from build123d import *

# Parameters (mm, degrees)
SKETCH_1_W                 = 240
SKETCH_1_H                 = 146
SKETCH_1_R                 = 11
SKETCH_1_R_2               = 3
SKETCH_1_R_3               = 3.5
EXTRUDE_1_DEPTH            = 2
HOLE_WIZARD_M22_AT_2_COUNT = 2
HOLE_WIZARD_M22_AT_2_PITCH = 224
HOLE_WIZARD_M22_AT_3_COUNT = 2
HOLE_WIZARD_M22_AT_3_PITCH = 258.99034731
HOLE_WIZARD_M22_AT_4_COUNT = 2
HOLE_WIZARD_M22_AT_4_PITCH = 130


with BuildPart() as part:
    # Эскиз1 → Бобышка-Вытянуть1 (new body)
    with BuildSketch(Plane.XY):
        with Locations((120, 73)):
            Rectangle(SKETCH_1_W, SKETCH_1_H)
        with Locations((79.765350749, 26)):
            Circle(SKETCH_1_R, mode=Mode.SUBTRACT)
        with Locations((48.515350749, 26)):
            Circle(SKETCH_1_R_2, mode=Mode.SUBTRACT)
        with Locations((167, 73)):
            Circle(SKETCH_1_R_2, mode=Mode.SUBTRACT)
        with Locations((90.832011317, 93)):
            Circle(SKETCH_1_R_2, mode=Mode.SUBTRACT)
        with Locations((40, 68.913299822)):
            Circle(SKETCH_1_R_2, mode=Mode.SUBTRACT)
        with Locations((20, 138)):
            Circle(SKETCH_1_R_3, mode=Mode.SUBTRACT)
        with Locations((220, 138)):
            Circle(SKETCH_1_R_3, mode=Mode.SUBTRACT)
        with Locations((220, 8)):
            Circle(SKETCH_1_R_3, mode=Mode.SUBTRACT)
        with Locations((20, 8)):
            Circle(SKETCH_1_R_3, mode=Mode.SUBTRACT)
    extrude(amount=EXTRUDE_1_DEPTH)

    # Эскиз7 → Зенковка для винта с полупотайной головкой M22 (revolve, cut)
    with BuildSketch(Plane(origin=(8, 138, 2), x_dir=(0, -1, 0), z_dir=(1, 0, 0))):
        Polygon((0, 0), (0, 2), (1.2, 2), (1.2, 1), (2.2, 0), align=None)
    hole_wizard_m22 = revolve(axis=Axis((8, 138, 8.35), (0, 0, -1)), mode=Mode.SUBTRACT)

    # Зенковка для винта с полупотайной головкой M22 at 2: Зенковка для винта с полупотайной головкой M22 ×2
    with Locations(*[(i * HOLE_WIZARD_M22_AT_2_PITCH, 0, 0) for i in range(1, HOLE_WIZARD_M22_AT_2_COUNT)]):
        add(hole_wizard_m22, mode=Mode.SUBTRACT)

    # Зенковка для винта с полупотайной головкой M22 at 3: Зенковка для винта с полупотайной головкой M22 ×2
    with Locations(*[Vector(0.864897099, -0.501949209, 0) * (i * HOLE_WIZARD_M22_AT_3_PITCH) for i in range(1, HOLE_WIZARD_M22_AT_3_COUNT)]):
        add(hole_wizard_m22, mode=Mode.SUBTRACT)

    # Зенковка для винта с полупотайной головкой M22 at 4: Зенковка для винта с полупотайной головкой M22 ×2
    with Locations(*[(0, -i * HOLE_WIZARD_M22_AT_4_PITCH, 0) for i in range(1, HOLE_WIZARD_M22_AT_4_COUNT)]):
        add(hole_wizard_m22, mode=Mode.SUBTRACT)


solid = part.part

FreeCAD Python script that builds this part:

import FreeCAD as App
import Part
import Sketcher
from FreeCAD import Vector
Q = App.Units.Quantity

doc = App.newDocument("Part")
body = doc.addObject("PartDesign::Body", "Body")

sketch1 = body.newObject("Sketcher::SketchObject", "Sketch")
sketch1.AttachmentSupport = (doc.getObject("XY_Plane"), [""])
sketch1.MapMode = "FlatFace"
sketch1.addGeometry([
    Part.LineSegment(Vector(0, 146, 0), Vector(0, 0, 0)),
    Part.LineSegment(Vector(0, 0, 0), Vector(240, 0, 0)),
    Part.LineSegment(Vector(240, 0, 0), Vector(240, 146, 0)),
    Part.LineSegment(Vector(240, 146, 0), Vector(0, 146, 0)),
    Part.Circle(Vector(20, 8, 0), Vector(0, 0, 1), 3.5),
    Part.Circle(Vector(48.5, 26, 0), Vector(0, 0, 1), 3),
    Part.Circle(Vector(79.8, 26, 0), Vector(0, 0, 1), 11),
    Part.Circle(Vector(40, 68.9, 0), Vector(0, 0, 1), 3),
    Part.Circle(Vector(220, 8, 0), Vector(0, 0, 1), 3.5),
    Part.Circle(Vector(90.8, 93, 0), Vector(0, 0, 1), 3),
    Part.Circle(Vector(20, 138, 0), Vector(0, 0, 1), 3.5),
    Part.Circle(Vector(167, 73, 0), Vector(0, 0, 1), 3),
    Part.Circle(Vector(220, 138, 0), Vector(0, 0, 1), 3.5),
], False)
sketch1.addConstraint([
    Sketcher.Constraint("Coincident", 0, 2, 1, 1),
    Sketcher.Constraint("Coincident", 1, 2, 2, 1),
    Sketcher.Constraint("Coincident", 2, 2, 3, 1),
    Sketcher.Constraint("Coincident", 3, 2, 0, 1),
    Sketcher.Constraint("Vertical", 0),
    Sketcher.Constraint("Horizontal", 1),
    Sketcher.Constraint("Vertical", 2),
    Sketcher.Constraint("Horizontal", 3),
    Sketcher.Constraint("Coincident", 0, 2, -1, 1),
    Sketcher.Constraint("Equal", 5, 7),
    Sketcher.Constraint("Equal", 4, 8),
    Sketcher.Constraint("Equal", 7, 9),
    Sketcher.Constraint("Equal", 8, 10),
    Sketcher.Constraint("Equal", 9, 11),
    Sketcher.Constraint("Equal", 10, 12),
    Sketcher.Constraint("Horizontal", 5, 3, 6, 3),
    Sketcher.Constraint("Horizontal", 4, 3, 8, 3),
    Sketcher.Constraint("Horizontal", 10, 3, 12, 3),
    Sketcher.Constraint("Vertical", 4, 3, 10, 3),
    Sketcher.Constraint("Vertical", 8, 3, 12, 3),
    Sketcher.Constraint("Diameter", 4, 7.0),
    Sketcher.Constraint("Diameter", 5, 6.0),
    Sketcher.Constraint("Diameter", 6, 22.0),
    Sketcher.Constraint("DistanceX", 1, 1, 1, 2, 240.0),
    Sketcher.Constraint("DistanceY", 0, 2, 0, 1, 146.0),
    Sketcher.Constraint("DistanceX", -1, 1, 4, 3, 20.0),
    Sketcher.Constraint("DistanceY", -1, 1, 4, 3, 8.0),
    Sketcher.Constraint("DistanceY", -1, 1, 5, 3, 26.0),
    Sketcher.Constraint("DistanceX", -1, 1, 7, 3, 40.0),
    Sketcher.Constraint("DistanceX", -1, 1, 8, 3, 220.0),
    Sketcher.Constraint("DistanceY", -1, 1, 9, 3, 93.0),
    Sketcher.Constraint("DistanceY", -1, 1, 10, 3, 138.0),
    Sketcher.Constraint("DistanceX", -1, 1, 11, 3, 167.0),
    Sketcher.Constraint("DistanceY", -1, 1, 11, 3, 73.0),
    Sketcher.Constraint("DistanceX", 5, 3, 6, 3, 31.25),
    Sketcher.Constraint("DistanceY", -1, 1, 7, 3, 68.9133),
    Sketcher.Constraint("DistanceX", -1, 1, 5, 3, 48.515351),
    Sketcher.Constraint("DistanceX", -1, 1, 9, 3, 90.832011),
])
pad1 = body.newObject("PartDesign::Pad", "Pad")
pad1.Profile = sketch1
pad1.Length = 2

sketch2 = body.newObject("Sketcher::SketchObject", "Sketch001")
sketch2.AttachmentSupport = (doc.getObject("YZ_Plane"), [""])
sketch2.MapMode = "FlatFace"
sketch2.AttachmentOffset = App.Placement(Vector(0, 0, 8), App.Rotation())
sketch2.addGeometry([
    Part.LineSegment(Vector(138, 0, 0), Vector(138, 2, 0)),
    Part.LineSegment(Vector(138, 2, 0), Vector(135.8, 2, 0)),
    Part.LineSegment(Vector(135.8, 2, 0), Vector(136.8, 1, 0)),
    Part.LineSegment(Vector(136.8, 1, 0), Vector(136.8, 0, 0)),
    Part.LineSegment(Vector(136.8, 0, 0), Vector(138, 0, 0)),
], False)
sketch2.addGeometry(Part.LineSegment(Vector(138, 2, 0), Vector(138, 0, 0)), True)
sketch2.addConstraint([
    Sketcher.Constraint("Coincident", 0, 2, 1, 1),
    Sketcher.Constraint("Coincident", 1, 2, 2, 1),
    Sketcher.Constraint("Coincident", 2, 2, 3, 1),
    Sketcher.Constraint("Coincident", 3, 2, 4, 1),
    Sketcher.Constraint("Coincident", 4, 2, 0, 1),
    Sketcher.Constraint("Vertical", 0),
    Sketcher.Constraint("Horizontal", 1),
    Sketcher.Constraint("Vertical", 3),
    Sketcher.Constraint("Horizontal", 4),
    Sketcher.Constraint("Vertical", 5),
    Sketcher.Constraint("Coincident", 5, 1, 0, 2),
    Sketcher.Constraint("PointOnObject", 3, 2, -1),
    Sketcher.Constraint("PointOnObject", 5, 2, -1),
    Sketcher.Constraint("DistanceY", 0, 1, 0, 2, 2.0),
    Sketcher.Constraint("DistanceY", 3, 2, 3, 1, 1.0),
    Sketcher.Constraint("Angle", 2, Q("-45 deg")),
    Sketcher.Constraint("DistanceX", 1, 2, 1, 1, 2.2),
    Sketcher.Constraint("DistanceX", -1, 1, 0, 2, 138.0),
])
groove = body.newObject("PartDesign::Groove", "Groove")
groove.Profile = sketch2
groove.ReferenceAxis = (sketch2, ["Axis0"])
groove.Angle = 360
doc.recompute()

linearpattern = body.newObject("PartDesign::LinearPattern", "LinearPattern")
linearpattern.Originals = [groove]
linearpattern.Direction = (doc.getObject("X_Axis"), [""])
linearpattern.Mode = "offset"
linearpattern.Offset = 224
linearpattern.Occurrences = 2
body.Tip = linearpattern
doc.recompute()

datumline = body.newObject("PartDesign::Line", "DatumLine")
datumline.Placement = App.Placement(Vector(0, 0, 0), App.Rotation(Vector(0, 0, 1), Vector(0.864897099, -0.501949209, 0)))
linearpattern2 = body.newObject("PartDesign::LinearPattern", "LinearPattern001")
linearpattern2.Originals = [groove]
linearpattern2.Direction = (datumline, [""])
linearpattern2.Mode = "offset"
linearpattern2.Offset = 258.990347
linearpattern2.Occurrences = 2
body.Tip = linearpattern2
doc.recompute()

linearpattern3 = body.newObject("PartDesign::LinearPattern", "LinearPattern002")
linearpattern3.Originals = [groove]
linearpattern3.Direction = (doc.getObject("Y_Axis"), [""])
linearpattern3.Mode = "offset"
linearpattern3.Offset = 130
linearpattern3.Occurrences = 2
linearpattern3.Reversed = True
body.Tip = linearpattern3

doc.recompute()
